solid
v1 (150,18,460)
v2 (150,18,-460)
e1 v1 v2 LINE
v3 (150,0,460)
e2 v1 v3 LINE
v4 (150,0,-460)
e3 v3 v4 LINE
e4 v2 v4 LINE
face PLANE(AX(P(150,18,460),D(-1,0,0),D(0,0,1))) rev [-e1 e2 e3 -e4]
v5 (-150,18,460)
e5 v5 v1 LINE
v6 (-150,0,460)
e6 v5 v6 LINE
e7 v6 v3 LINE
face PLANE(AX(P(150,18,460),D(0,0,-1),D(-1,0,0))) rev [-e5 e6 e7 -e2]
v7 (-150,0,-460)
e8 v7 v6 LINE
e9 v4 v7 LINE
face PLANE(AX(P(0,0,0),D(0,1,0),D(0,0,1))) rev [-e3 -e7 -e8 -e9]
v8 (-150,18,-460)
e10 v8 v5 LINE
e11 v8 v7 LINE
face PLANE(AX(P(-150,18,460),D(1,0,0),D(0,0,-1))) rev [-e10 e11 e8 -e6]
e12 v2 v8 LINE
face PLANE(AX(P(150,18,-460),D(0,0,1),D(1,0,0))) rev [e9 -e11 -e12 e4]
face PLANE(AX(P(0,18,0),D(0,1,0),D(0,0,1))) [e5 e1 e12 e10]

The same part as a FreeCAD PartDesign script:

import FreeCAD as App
import Part
import Sketcher
from FreeCAD import Vector
Q = App.Units.Quantity

doc = App.newDocument("Part")
body = doc.addObject("PartDesign::Body", "Body")

sketch1 = doc.addObject("Sketcher::SketchObject", "Sketch")
body.addObject(sketch1)
sketch1.AttachmentSupport = (doc.XZ_Plane, [""])
sketch1.MapMode = "FlatFace"
sketch1.addGeometry(Part.LineSegment(Vector(-150, -460, 0), Vector(-150, 460, 0)), False)
sketch1.addGeometry(Part.LineSegment(Vector(-150, 460, 0), Vector(150, 460, 0)), False)
sketch1.addGeometry(Part.LineSegment(Vector(150, 460, 0), Vector(150, -460, 0)), False)
sketch1.addGeometry(Part.LineSegment(Vector(150, -460, 0), Vector(-150, -460, 0)), False)
sketch1.addConstraint(Sketcher.Constraint("Coincident", 0, 2, 1, 1))
sketch1.addConstraint(Sketcher.Constraint("Coincident", 1, 2, 2, 1))
sketch1.addConstraint(Sketcher.Constraint("Coincident", 2, 2, 3, 1))
sketch1.addConstraint(Sketcher.Constraint("Coincident", 3, 2, 0, 1))
sketch1.addConstraint(Sketcher.Constraint("Vertical", 0))
sketch1.addConstraint(Sketcher.Constraint("Horizontal", 1))
sketch1.addConstraint(Sketcher.Constraint("Vertical", 2))
sketch1.addConstraint(Sketcher.Constraint("Horizontal", 3))
sketch1.addConstraint(Sketcher.Constraint("Symmetric", 0, 2, 2, 2, -1, 1))
sketch1.addConstraint(Sketcher.Constraint("DistanceX", 1, 1, 1, 2, Q("300 mm")))
sketch1.addConstraint(Sketcher.Constraint("DistanceY", 0, 1, 0, 2, Q("920 mm")))
pad1 = doc.addObject("PartDesign::Pad", "Pad")
body.addObject(pad1)
pad1.Profile = sketch1
pad1.Length = 18
pad1.Reversed = True

doc.recompute()
